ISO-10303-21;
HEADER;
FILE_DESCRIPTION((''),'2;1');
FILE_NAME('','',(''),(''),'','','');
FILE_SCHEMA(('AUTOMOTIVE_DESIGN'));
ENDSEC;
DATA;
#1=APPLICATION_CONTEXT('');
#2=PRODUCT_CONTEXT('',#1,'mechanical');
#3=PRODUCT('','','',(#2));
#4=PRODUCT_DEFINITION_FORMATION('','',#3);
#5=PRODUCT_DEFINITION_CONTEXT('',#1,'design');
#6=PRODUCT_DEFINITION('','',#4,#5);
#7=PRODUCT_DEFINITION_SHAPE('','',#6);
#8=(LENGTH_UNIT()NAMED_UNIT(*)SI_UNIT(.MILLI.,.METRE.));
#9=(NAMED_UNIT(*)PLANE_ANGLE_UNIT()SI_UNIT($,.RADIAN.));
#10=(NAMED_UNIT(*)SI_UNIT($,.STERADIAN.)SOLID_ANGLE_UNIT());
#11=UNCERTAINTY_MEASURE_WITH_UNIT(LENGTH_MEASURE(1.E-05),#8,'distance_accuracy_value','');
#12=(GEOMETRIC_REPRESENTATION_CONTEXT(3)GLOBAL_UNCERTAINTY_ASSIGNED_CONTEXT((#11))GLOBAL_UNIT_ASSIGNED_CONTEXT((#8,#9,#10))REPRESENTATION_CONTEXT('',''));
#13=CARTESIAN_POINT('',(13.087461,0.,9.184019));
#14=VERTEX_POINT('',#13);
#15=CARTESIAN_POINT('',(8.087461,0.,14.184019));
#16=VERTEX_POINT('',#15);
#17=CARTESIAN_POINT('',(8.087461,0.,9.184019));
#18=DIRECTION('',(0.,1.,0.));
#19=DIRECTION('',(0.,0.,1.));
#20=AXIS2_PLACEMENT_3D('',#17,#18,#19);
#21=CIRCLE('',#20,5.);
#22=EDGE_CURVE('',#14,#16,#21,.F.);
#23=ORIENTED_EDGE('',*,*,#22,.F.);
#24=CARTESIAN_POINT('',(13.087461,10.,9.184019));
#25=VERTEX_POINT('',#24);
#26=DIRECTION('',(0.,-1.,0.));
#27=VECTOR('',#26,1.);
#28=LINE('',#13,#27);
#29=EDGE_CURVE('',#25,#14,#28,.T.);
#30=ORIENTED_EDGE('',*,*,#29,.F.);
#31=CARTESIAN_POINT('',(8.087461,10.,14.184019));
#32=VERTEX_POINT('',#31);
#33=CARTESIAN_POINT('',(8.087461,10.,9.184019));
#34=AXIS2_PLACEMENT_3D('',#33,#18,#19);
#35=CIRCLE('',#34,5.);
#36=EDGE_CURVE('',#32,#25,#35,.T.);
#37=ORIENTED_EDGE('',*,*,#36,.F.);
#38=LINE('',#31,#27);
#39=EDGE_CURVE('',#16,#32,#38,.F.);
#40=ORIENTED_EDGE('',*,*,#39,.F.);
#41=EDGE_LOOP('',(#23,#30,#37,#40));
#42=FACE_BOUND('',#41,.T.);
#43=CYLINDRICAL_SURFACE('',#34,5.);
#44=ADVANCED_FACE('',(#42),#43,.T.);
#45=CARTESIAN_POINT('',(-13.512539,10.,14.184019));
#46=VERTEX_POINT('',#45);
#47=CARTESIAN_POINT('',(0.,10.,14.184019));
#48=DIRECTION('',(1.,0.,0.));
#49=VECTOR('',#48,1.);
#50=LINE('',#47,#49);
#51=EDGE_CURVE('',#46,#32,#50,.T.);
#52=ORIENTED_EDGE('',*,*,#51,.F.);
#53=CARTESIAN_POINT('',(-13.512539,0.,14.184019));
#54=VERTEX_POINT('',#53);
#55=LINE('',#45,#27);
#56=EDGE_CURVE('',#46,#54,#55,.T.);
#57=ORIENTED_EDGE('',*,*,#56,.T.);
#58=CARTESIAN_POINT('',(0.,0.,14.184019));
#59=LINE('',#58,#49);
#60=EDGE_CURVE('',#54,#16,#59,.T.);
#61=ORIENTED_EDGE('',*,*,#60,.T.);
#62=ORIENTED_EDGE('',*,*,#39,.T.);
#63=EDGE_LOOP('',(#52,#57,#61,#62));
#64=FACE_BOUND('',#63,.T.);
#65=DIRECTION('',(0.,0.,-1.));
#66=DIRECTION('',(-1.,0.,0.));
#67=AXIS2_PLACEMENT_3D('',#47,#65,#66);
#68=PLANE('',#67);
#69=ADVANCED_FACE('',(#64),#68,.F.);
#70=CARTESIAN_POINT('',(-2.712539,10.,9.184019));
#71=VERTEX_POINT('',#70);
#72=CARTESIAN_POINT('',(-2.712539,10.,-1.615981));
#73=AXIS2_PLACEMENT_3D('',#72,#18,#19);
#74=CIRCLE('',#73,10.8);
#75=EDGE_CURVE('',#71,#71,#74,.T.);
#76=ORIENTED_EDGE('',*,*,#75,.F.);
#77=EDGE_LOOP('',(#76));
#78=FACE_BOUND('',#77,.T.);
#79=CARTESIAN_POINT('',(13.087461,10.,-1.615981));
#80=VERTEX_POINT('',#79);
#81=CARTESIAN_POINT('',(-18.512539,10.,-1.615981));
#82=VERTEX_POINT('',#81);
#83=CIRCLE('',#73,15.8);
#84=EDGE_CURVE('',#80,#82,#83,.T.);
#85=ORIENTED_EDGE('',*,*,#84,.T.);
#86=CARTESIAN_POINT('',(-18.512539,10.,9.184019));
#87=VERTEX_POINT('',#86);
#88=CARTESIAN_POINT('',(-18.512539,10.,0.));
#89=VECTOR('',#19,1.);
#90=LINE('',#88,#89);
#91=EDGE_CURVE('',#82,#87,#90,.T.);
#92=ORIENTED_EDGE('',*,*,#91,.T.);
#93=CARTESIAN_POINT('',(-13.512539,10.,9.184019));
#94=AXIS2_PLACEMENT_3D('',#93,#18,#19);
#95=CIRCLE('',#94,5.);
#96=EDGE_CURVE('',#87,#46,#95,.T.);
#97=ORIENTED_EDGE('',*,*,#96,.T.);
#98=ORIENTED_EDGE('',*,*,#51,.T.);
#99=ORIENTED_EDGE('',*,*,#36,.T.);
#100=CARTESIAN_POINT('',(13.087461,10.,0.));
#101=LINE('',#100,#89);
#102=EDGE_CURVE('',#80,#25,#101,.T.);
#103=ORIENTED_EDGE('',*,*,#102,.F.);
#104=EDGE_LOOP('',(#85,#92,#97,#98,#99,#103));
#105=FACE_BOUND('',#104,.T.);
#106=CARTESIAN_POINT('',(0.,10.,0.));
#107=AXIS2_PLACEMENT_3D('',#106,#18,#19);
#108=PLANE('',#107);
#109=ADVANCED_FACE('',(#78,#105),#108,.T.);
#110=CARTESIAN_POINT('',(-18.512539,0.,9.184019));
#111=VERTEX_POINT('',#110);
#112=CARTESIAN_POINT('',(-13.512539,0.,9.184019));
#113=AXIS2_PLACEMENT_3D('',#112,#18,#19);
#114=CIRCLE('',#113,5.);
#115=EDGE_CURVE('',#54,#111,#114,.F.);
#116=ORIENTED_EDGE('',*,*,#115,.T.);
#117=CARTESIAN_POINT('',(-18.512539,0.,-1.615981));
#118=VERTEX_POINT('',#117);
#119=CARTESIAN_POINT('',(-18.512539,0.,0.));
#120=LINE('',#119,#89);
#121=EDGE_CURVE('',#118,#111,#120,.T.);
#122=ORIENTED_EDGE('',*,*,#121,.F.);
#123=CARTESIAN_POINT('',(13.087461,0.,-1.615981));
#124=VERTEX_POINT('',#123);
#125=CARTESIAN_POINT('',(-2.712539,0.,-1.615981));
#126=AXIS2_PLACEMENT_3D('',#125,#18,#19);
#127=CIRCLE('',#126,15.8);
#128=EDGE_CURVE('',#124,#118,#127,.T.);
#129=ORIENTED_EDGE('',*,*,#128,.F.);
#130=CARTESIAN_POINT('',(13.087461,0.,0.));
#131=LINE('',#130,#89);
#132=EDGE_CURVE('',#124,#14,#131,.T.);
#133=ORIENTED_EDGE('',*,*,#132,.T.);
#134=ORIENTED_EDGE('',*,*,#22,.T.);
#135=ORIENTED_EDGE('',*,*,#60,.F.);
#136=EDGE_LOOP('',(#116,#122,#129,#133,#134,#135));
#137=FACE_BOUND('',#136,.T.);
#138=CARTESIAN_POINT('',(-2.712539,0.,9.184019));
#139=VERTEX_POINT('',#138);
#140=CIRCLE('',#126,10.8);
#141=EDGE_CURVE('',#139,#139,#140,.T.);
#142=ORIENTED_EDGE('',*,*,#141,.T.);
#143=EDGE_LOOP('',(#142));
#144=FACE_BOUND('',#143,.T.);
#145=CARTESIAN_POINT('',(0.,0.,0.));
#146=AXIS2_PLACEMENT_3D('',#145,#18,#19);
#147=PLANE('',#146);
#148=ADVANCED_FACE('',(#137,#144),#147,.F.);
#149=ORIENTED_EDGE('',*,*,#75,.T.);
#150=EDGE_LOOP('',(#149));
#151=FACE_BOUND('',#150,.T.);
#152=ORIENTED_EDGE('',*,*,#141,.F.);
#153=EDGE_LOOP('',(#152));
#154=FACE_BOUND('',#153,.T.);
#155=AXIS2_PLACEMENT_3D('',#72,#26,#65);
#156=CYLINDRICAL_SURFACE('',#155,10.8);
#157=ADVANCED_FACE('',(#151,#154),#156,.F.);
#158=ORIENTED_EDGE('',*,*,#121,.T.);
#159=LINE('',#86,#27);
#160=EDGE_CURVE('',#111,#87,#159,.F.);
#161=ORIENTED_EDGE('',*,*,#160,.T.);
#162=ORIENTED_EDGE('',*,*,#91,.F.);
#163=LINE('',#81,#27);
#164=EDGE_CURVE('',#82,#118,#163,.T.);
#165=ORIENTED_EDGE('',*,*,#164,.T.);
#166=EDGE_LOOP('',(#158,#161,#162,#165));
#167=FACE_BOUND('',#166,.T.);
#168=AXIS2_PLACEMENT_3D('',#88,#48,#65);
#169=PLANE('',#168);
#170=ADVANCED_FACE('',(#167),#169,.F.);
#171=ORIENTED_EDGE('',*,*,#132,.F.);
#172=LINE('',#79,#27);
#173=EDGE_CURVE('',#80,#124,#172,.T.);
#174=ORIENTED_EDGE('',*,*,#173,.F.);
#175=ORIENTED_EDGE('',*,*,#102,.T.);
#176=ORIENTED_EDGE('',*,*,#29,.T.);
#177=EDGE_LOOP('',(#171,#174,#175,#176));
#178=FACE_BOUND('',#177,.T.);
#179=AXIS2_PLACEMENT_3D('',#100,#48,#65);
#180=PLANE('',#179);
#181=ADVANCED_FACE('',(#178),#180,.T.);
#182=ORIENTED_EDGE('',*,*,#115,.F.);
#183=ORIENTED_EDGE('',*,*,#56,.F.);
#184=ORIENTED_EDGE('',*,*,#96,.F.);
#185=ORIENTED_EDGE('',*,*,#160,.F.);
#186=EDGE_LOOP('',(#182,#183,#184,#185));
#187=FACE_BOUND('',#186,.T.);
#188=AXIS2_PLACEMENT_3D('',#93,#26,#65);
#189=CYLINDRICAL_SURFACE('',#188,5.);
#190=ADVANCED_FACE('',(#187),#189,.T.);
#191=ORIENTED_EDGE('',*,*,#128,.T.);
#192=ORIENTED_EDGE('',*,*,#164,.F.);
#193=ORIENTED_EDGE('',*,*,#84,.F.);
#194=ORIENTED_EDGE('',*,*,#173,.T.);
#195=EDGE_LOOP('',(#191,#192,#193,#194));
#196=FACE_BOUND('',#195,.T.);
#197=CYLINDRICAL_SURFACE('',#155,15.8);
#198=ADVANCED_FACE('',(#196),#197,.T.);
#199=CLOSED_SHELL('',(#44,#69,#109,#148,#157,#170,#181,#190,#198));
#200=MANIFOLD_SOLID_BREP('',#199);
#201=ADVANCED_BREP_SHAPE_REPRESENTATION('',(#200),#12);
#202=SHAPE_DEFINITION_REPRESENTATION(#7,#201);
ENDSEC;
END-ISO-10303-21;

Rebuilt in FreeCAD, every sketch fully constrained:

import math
import FreeCAD as App
import Part
import Sketcher


def edges_at(feature, points):
    """Names of the edges that pass closest to the given points."""
    edges = feature.Shape.Edges
    near = lambda p: min(range(len(edges)), key=lambda i: edges[i].distToShape(Part.Vertex(*p))[0])
    return sorted({f"Edge{near(p) + 1}" for p in points})

doc = App.newDocument("Part")
params = doc.addObject("Spreadsheet::Sheet", "Params")
for row, (alias, value) in enumerate([
    ("sketch1_diameter", "21.6 mm"),
    ("sketch1_radius", "15.8 mm"),
    ("sketch1_height", "15.8 mm"),
    ("pad1_length", "10 mm"),
    ("fillet_radius", "5 mm"),
], start=1):
    params.set(f"A{row}", alias)
    params.set(f"B{row}", "=" + value)
    params.setAlias(f"B{row}", alias)

body = doc.addObject("PartDesign::Body", "Body")

sketch1 = doc.addObject("Sketcher::SketchObject", "Sketch")
body.addObject(sketch1)
sketch1.AttachmentSupport = (doc.XZ_Plane, [""])
sketch1.MapMode = "FlatFace"
sketch1.addGeometry([
    Part.LineSegment(App.Vector(13.087461, 14.184019, 0), App.Vector(13.087461, -1.615981, 0)),
    Part.ArcOfCircle(Part.Circle(App.Vector(-2.712539, -1.615981, 0), App.Vector(0, 0, 1), 15.8), math.radians(180), math.radians(360)),
    Part.LineSegment(App.Vector(-18.512539, -1.615981, 0), App.Vector(-18.512539, 14.184019, 0)),
    Part.LineSegment(App.Vector(-18.512539, 14.184019, 0), App.Vector(13.087461, 14.184019, 0)),
    Part.Circle(App.Vector(-2.712539, -1.615981, 0), App.Vector(0, 0, 1), 10.8),
], False)
sketch1.addConstraint([
    Sketcher.Constraint("Tangent", 0, 2, 1, 2),
    Sketcher.Constraint("Tangent", 1, 1, 2, 1),
    Sketcher.Constraint("Coincident", 2, 2, 3, 1),
    Sketcher.Constraint("Coincident", 3, 2, 0, 1),
    Sketcher.Constraint("Vertical", 0),
    Sketcher.Constraint("Vertical", 2),
    Sketcher.Constraint("Horizontal", 3),
    Sketcher.Constraint("Coincident", 4, 3, 1, 3),
    Sketcher.Constraint("Diameter", 4, 21.6),
    Sketcher.Constraint("Radius", 1, 15.8),
    Sketcher.Constraint("DistanceY", 0, 2, 0, 1, 15.8),
    Sketcher.Constraint("DistanceX", 1, 3, -1, 1, 2.712539),
    Sketcher.Constraint("DistanceY", 1, 3, -1, 1, 1.615981),
])
sketch1.setExpression("Constraints[8]", "Params.sketch1_diameter")
sketch1.setExpression("Constraints[9]", "Params.sketch1_radius")
sketch1.setExpression("Constraints[10]", "Params.sketch1_height")
pad1 = doc.addObject("PartDesign::Pad", "Pad")
body.addObject(pad1)
pad1.Profile = sketch1
pad1.setExpression("Length", "Params.pad1_length")
pad1.Reversed = True
doc.recompute()

fillet = doc.addObject("PartDesign::Fillet", "Fillet")
body.addObject(fillet)
fillet.Base = (pad1, edges_at(pad1, [(13.087, 5, 14.184), (-18.513, 5, 14.184)]))
fillet.setExpression("Radius", "Params.fillet_radius")

doc.recompute()
